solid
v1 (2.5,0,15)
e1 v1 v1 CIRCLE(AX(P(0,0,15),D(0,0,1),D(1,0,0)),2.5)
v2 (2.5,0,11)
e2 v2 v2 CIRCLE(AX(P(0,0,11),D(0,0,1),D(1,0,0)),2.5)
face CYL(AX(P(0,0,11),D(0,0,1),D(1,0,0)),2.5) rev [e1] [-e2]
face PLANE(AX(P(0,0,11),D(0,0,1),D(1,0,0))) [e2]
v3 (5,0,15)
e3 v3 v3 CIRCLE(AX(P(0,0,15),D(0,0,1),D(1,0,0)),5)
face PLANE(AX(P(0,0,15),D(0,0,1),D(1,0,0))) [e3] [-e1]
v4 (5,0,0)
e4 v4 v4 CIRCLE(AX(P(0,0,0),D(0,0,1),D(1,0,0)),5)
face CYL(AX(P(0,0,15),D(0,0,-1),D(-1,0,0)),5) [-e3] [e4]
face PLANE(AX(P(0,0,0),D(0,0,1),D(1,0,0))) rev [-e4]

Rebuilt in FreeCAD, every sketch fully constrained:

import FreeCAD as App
import Part
import Sketcher
from FreeCAD import Vector

doc = App.newDocument("Part")
body = doc.addObject("PartDesign::Body", "Body")

sketch1 = body.newObject("Sketcher::SketchObject", "Sketch")
sketch1.AttachmentSupport = (doc.getObject("XY_Plane"), [""])
sketch1.MapMode = "FlatFace"
sketch1.addGeometry(Part.Circle(Vector(0, 0, 0), Vector(0, 0, 1), 5), False)
sketch1.addConstraint(Sketcher.Constraint("Coincident", 0, 3, -1, 1))
sketch1.addConstraint(Sketcher.Constraint("Diameter", 0, 10.0))
pad1 = body.newObject("PartDesign::Pad", "Pad")
pad1.Profile = sketch1
pad1.Length = 15

sketch2 = body.newObject("Sketcher::SketchObject", "Sketch001")
sketch2.AttachmentSupport = (doc.getObject("XY_Plane"), [""])
sketch2.MapMode = "FlatFace"
sketch2.AttachmentOffset = App.Placement(Vector(0, 0, 15), App.Rotation())
sketch2.addGeometry(Part.Circle(Vector(0, 0, 0), Vector(0, 0, 1), 2.5), False)
sketch2.addConstraint(Sketcher.Constraint("Coincident", 0, 3, -1, 1))
sketch2.addConstraint(Sketcher.Constraint("Diameter", 0, 5.0))
pocket1 = body.newObject("PartDesign::Pocket", "Pocket")
pocket1.Profile = sketch2
pocket1.Length = 4

doc.recompute()
